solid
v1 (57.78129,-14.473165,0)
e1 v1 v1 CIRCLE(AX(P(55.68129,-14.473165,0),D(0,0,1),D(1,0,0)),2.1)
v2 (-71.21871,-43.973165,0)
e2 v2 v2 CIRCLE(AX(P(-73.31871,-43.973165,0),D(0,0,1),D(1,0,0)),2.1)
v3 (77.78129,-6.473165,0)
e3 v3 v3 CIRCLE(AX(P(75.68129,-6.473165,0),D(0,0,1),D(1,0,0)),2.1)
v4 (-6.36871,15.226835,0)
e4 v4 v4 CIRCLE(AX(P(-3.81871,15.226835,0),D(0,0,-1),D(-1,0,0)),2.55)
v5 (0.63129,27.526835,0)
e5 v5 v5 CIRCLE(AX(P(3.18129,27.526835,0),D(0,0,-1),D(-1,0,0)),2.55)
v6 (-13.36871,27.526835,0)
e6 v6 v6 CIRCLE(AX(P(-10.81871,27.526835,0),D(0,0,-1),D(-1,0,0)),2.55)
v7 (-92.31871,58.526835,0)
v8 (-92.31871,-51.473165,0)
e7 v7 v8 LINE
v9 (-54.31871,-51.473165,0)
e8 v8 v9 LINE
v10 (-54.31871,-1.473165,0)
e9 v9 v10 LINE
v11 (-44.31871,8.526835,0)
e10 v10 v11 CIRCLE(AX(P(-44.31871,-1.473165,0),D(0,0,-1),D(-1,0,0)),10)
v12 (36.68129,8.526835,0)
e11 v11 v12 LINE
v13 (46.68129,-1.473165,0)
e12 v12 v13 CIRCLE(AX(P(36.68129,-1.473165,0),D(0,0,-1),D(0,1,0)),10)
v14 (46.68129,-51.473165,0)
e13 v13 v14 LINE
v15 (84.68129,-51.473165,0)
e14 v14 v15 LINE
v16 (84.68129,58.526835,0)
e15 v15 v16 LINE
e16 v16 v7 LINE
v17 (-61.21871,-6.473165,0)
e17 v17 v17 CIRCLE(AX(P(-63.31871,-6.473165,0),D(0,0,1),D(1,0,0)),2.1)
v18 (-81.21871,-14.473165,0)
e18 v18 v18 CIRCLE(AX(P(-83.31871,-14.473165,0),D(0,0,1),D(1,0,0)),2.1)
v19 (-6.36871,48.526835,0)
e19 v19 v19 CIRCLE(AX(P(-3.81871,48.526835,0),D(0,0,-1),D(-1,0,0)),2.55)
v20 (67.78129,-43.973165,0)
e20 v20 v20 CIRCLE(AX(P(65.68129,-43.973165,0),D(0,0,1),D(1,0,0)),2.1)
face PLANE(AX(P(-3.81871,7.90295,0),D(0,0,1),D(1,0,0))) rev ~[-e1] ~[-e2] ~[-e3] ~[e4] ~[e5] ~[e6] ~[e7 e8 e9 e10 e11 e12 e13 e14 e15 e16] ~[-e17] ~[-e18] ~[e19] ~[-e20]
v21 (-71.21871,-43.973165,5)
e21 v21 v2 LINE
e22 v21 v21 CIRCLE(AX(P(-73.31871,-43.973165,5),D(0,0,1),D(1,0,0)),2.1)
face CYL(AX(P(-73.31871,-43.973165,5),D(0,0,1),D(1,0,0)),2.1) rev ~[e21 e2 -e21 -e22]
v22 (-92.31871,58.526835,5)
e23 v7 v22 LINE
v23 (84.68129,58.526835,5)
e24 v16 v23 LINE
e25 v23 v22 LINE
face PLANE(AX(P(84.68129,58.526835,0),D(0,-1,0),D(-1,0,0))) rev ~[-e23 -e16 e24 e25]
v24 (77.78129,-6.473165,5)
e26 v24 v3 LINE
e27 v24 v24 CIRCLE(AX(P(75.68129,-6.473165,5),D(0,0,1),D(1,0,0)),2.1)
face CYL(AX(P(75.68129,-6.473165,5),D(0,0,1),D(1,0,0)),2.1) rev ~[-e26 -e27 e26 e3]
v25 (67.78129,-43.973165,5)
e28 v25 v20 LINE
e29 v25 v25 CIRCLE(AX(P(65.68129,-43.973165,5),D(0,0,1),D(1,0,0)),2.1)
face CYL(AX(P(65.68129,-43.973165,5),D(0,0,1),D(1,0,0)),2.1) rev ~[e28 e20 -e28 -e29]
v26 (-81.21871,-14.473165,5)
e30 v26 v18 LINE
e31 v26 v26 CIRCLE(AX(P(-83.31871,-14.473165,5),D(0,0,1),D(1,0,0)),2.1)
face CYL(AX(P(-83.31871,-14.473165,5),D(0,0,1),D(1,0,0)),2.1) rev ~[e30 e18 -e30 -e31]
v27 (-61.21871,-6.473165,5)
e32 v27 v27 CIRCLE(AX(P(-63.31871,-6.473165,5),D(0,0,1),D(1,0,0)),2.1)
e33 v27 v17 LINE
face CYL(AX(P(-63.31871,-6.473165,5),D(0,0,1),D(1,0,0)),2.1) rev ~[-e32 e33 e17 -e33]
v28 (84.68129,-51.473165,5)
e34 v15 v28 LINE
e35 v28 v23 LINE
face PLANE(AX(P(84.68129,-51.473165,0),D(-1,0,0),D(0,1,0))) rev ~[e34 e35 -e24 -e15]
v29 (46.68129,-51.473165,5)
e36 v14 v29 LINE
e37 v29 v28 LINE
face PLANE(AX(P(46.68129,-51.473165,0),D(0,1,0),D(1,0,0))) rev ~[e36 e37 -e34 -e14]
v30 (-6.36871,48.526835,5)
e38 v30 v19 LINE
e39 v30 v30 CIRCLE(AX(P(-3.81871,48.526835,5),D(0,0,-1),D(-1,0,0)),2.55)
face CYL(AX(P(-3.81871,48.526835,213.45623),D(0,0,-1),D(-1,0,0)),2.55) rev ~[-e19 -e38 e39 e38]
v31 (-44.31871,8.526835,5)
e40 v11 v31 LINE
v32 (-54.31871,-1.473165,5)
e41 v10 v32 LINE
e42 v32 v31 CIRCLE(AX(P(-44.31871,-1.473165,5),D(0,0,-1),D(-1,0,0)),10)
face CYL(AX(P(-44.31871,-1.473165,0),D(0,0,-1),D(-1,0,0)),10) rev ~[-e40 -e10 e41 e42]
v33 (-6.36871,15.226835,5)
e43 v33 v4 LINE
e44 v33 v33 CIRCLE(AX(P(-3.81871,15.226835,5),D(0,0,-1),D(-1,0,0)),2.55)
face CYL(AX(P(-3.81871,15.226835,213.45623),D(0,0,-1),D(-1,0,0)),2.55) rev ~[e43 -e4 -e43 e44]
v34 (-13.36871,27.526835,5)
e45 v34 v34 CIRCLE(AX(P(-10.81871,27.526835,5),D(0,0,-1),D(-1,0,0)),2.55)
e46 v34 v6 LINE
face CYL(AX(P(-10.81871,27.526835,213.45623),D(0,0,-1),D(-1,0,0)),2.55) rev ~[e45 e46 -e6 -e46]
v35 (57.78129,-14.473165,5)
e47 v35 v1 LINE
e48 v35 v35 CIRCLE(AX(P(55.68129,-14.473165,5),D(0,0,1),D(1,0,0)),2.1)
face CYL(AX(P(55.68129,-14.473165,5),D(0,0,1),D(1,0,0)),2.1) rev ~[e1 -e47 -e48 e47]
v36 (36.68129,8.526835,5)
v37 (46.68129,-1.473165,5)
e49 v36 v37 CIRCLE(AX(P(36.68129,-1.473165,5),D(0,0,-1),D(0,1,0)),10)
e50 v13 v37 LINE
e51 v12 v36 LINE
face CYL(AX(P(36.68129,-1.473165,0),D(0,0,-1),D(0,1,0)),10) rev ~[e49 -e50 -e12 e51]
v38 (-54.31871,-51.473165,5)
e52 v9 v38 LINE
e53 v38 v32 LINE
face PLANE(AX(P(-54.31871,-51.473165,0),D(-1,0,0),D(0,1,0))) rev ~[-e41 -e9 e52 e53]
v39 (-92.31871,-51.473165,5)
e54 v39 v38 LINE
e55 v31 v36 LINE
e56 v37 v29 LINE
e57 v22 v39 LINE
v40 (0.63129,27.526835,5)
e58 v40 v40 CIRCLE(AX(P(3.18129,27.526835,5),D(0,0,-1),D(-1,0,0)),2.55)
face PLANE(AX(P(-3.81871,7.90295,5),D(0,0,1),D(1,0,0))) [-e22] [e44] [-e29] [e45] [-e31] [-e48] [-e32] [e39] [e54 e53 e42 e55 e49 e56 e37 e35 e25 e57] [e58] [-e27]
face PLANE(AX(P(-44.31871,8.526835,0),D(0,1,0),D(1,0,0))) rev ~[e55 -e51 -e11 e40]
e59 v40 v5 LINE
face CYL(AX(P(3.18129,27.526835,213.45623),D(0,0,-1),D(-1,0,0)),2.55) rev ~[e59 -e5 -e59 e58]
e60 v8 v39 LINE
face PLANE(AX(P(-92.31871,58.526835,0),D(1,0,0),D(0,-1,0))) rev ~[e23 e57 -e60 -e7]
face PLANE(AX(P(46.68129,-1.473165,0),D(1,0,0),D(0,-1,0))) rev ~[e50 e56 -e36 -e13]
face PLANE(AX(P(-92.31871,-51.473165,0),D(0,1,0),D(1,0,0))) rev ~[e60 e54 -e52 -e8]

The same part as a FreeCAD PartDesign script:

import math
import FreeCAD as App
import Part
import Sketcher

doc = App.newDocument("Part")
params = doc.addObject("Spreadsheet::Sheet", "Params")
for row, (alias, value) in enumerate([
    ("sketch1_radius", "10 mm"),
    ("sketch1_width", "177 mm"),
    ("sketch1_width2", "38 mm"),
    ("sketch1_height", "110 mm"),
    ("sketch1_height2", "50 mm"),
    ("pad1_length", "5 mm"),
    ("sketch2_diameter", "5.1 mm"),
    ("hole_diameter", "5.1 mm"),
    ("sketch3_diameter", "4.2 mm"),
    ("pocket1_length", "25 mm"),
], start=1):
    params.set(f"A{row}", alias)
    params.set(f"B{row}", "=" + value)
    params.setAlias(f"B{row}", alias)

body = doc.addObject("PartDesign::Body", "Body")

# Sketch on XY plane
sketch1 = body.newObject("Sketcher::SketchObject", "Sketch")
sketch1.AttachmentSupport = (doc.getObject("XY_Plane"), [""])
sketch1.MapMode = "FlatFace"
sketch1.addGeometry([
    Part.LineSegment(App.Vector(84.68129, 58.526835, 0), App.Vector(-92.31871, 58.526835, 0)),  # 0
    Part.LineSegment(App.Vector(-92.31871, 58.526835, 0), App.Vector(-92.31871, -51.473165, 0)),  # 1
    Part.LineSegment(App.Vector(-92.31871, -51.473165, 0), App.Vector(-54.31871, -51.473165, 0)),  # 2
    Part.LineSegment(App.Vector(-54.31871, -51.473165, 0), App.Vector(-54.31871, -1.473165, 0)),  # 3
    Part.ArcOfCircle(Part.Circle(App.Vector(-44.31871, -1.473165, 0), App.Vector(0, 0, 1), 10), math.radians(90), math.radians(180)),  # 4
    Part.LineSegment(App.Vector(-44.31871, 8.526835, 0), App.Vector(36.68129, 8.526835, 0)),  # 5
    Part.ArcOfCircle(Part.Circle(App.Vector(36.68129, -1.473165, 0), App.Vector(0, 0, 1), 10), math.radians(0), math.radians(90)),  # 6
    Part.LineSegment(App.Vector(46.68129, -1.473165, 0), App.Vector(46.68129, -51.473165, 0)),  # 7
    Part.LineSegment(App.Vector(46.68129, -51.473165, 0), App.Vector(84.68129, -51.473165, 0)),  # 8
    Part.LineSegment(App.Vector(84.68129, -51.473165, 0), App.Vector(84.68129, 58.526835, 0)),  # 9
], False)
sketch1.addConstraint([
    Sketcher.Constraint("Coincident", 0, 2, 1, 1),
    Sketcher.Constraint("Coincident", 1, 2, 2, 1),
    Sketcher.Constraint("Coincident", 2, 2, 3, 1),
    Sketcher.Constraint("Tangent", 3, 2, 4, 2),
    Sketcher.Constraint("Tangent", 4, 1, 5, 1),
    Sketcher.Constraint("Tangent", 5, 2, 6, 2),
    Sketcher.Constraint("Tangent", 6, 1, 7, 1),
    Sketcher.Constraint("Coincident", 7, 2, 8, 1),
    Sketcher.Constraint("Coincident", 8, 2, 9, 1),
    Sketcher.Constraint("Coincident", 9, 2, 0, 1),
    Sketcher.Constraint("Horizontal", 0),
    Sketcher.Constraint("Vertical", 1),
    Sketcher.Constraint("Horizontal", 2),
    Sketcher.Constraint("Vertical", 3),
    Sketcher.Constraint("Horizontal", 5),
    Sketcher.Constraint("Vertical", 7),
    Sketcher.Constraint("Horizontal", 8),
    Sketcher.Constraint("Vertical", 9),
    Sketcher.Constraint("Equal", 4, 6),
    Sketcher.Constraint("Horizontal", 2, 2, 7, 2),
    Sketcher.Constraint("Equal", 2, 8),
    Sketcher.Constraint("Radius", 4, 10.0),
    Sketcher.Constraint("DistanceX", 0, 2, 0, 1, 177.0),
    Sketcher.Constraint("DistanceX", 2, 1, 2, 2, 38.0),
    Sketcher.Constraint("DistanceY", 1, 2, 1, 1, 110.0),
    Sketcher.Constraint("DistanceY", 3, 1, 3, 2, 50.0),
    Sketcher.Constraint("DistanceX", 4, 3, -1, 1, 44.31871),
    Sketcher.Constraint("DistanceY", 4, 3, -1, 1, 1.473165),
])
sketch1.setExpression("Constraints[21]", "Params.sketch1_radius")
sketch1.setExpression("Constraints[22]", "Params.sketch1_width")
sketch1.setExpression("Constraints[23]", "Params.sketch1_width2")
sketch1.setExpression("Constraints[24]", "Params.sketch1_height")
sketch1.setExpression("Constraints[25]", "Params.sketch1_height2")
pad1 = body.newObject("PartDesign::Pad", "Pad")
pad1.Profile = sketch1
pad1.setExpression("Length", "Params.pad1_length")

# Sketch on XY plane
sketch2 = body.newObject("Sketcher::SketchObject", "Sketch001")
sketch2.AttachmentSupport = (doc.getObject("XY_Plane"), [""])
sketch2.MapMode = "FlatFace"
sketch2.AttachmentOffset = App.Placement(App.Vector(0, 0, 5), App.Rotation())
sketch2.addGeometry([
    Part.Circle(App.Vector(-10.81871, 27.526835, 0), App.Vector(0, 0, 1), 2.55),
    Part.Circle(App.Vector(-3.81871, 48.526835, 0), App.Vector(0, 0, 1), 2.55),
    Part.Circle(App.Vector(3.18129, 27.526835, 0), App.Vector(0, 0, 1), 2.55),
    Part.Circle(App.Vector(-3.81871, 15.226835, 0), App.Vector(0, 0, 1), 2.55),
], False)
sketch2.addConstraint([
    Sketcher.Constraint("Equal", 0, 1),
    Sketcher.Constraint("Equal", 1, 2),
    Sketcher.Constraint("Equal", 2, 3),
    Sketcher.Constraint("Horizontal", 0, 3, 2, 3),
    Sketcher.Constraint("Vertical", 1, 3, 3, 3),
    Sketcher.Constraint("Diameter", 0, 5.1),
    Sketcher.Constraint("DistanceX", 0, 3, 1, 3, 7.0),
    Sketcher.Constraint("DistanceY", 0, 3, 1, 3, 21.0),
    Sketcher.Constraint("DistanceX", 0, 3, 2, 3, 14.0),
    Sketcher.Constraint("DistanceY", 3, 3, 0, 3, 12.3),
    Sketcher.Constraint("DistanceX", 0, 3, -1, 1, 10.81871),
    Sketcher.Constraint("DistanceY", -1, 1, 0, 3, 27.526835),
])
sketch2.setExpression("Constraints[5]", "Params.sketch2_diameter")
doc.recompute()
hole = body.newObject("PartDesign::Hole", "Hole")
hole.Profile = sketch2
hole.ThreadType = "None"
hole.setExpression("Diameter", "Params.hole_diameter")
hole.DepthType = "ThroughAll"

# Sketch on XY plane
sketch3 = body.newObject("Sketcher::SketchObject", "Sketch002")
sketch3.AttachmentSupport = (doc.getObject("XY_Plane"), [""])
sketch3.MapMode = "FlatFace"
sketch3.AttachmentOffset = App.Placement(App.Vector(0, 0, 5), App.Rotation())
sketch3.addGeometry([
    Part.Circle(App.Vector(-63.31871, -6.473165, 0), App.Vector(0, 0, 1), 2.1),  # 0
    Part.Circle(App.Vector(55.68129, -14.473165, 0), App.Vector(0, 0, 1), 2.1),  # 1
    Part.Circle(App.Vector(-83.31871, -14.473165, 0), App.Vector(0, 0, 1), 2.1),  # 2
    Part.Circle(App.Vector(-73.31871, -43.973165, 0), App.Vector(0, 0, 1), 2.1),  # 3
    Part.Circle(App.Vector(75.68129, -6.473165, 0), App.Vector(0, 0, 1), 2.1),  # 4
    Part.Circle(App.Vector(65.68129, -43.973165, 0), App.Vector(0, 0, 1), 2.1),  # 5
], False)
sketch3.addConstraint([
    Sketcher.Constraint("Equal", 0, 1),
    Sketcher.Constraint("Equal", 1, 2),
    Sketcher.Constraint("Equal", 2, 3),
    Sketcher.Constraint("Equal", 3, 4),
    Sketcher.Constraint("Equal", 4, 5),
    Sketcher.Constraint("Horizontal", 1, 3, 2, 3),
    Sketcher.Constraint("Horizontal", 0, 3, 4, 3),
    Sketcher.Constraint("Horizontal", 3, 3, 5, 3),
    Sketcher.Constraint("Diameter", 0, 4.2),
    Sketcher.Constraint("DistanceX", 0, 3, 1, 3, 119.0),
    Sketcher.Constraint("DistanceY", 1, 3, 0, 3, 8.0),
    Sketcher.Constraint("DistanceX", 2, 3, 0, 3, 20.0),
    Sketcher.Constraint("DistanceX", 2, 3, 3, 3, 10.0),
    Sketcher.Constraint("DistanceX", 1, 3, 4, 3, 20.0),
    Sketcher.Constraint("DistanceX", 1, 3, 5, 3, 10.0),
    Sketcher.Constraint("DistanceY", 3, 3, 2, 3, 29.5),
    Sketcher.Constraint("DistanceX", 0, 3, -1, 1, 63.31871),
    Sketcher.Constraint("DistanceY", 0, 3, -1, 1, 6.473165),
])
sketch3.setExpression("Constraints[8]", "Params.sketch3_diameter")
pocket1 = body.newObject("PartDesign::Pocket", "Pocket")
pocket1.Profile = sketch3
pocket1.setExpression("Length", "Params.pocket1_length")

doc.recompute()
